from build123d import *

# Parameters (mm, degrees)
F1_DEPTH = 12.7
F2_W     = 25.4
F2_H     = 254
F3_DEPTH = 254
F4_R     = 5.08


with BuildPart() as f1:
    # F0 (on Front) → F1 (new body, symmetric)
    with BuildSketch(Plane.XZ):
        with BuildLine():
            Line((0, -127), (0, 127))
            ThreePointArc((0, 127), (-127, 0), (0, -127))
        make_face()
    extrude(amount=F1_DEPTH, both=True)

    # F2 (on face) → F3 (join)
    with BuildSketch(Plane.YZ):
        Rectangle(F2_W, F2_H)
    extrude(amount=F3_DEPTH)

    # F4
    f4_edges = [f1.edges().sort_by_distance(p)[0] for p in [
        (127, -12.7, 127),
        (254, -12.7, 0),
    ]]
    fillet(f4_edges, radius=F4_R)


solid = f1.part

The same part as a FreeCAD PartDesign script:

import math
import FreeCAD as App
import Part
import Sketcher

V = App.Vector
Q = App.Units.Quantity


def edges_at(feature, points):
    """Names of the edges that pass closest to the given points."""
    edges = feature.Shape.Edges
    near = lambda p: min(range(len(edges)), key=lambda i: edges[i].distToShape(Part.Vertex(*p))[0])
    return sorted({f"Edge{near(p) + 1}" for p in points})

doc = App.newDocument("Part")
body = doc.addObject("PartDesign::Body", "Body")

# Sketch on XZ plane
sketch1 = doc.addObject("Sketcher::SketchObject", "Sketch")
body.addObject(sketch1)
sketch1.AttachmentSupport = (doc.XZ_Plane, [""])
sketch1.MapMode = "FlatFace"
sketch1.addGeometry(Part.LineSegment(V(0, -127, 0), V(0, 127, 0)), False)
sketch1.addGeometry(Part.ArcOfCircle(Part.Circle(V(0, 0, 0), V(0, 0, 1), 127), math.radians(90), math.radians(270)), False)
sketch1.addConstraint(Sketcher.Constraint("Coincident", 0, 1, 1, 2))
sketch1.addConstraint(Sketcher.Constraint("Coincident", 1, 1, 0, 2))
sketch1.addConstraint(Sketcher.Constraint("Vertical", 0))
sketch1.addConstraint(Sketcher.Constraint("Coincident", 1, 3, -1, 1))
sketch1.addConstraint(Sketcher.Constraint("PointOnObject", 0, 1, -2))
sketch1.addConstraint(Sketcher.Constraint("Radius", 1, Q("5 in")))
pad1 = doc.addObject("PartDesign::Pad", "Pad")
body.addObject(pad1)
pad1.Profile = sketch1
pad1.Length = Q("1 in")
pad1.Midplane = True

# Sketch on YZ plane
sketch2 = doc.addObject("Sketcher::SketchObject", "Sketch001")
body.addObject(sketch2)
sketch2.AttachmentSupport = (doc.YZ_Plane, [""])
sketch2.MapMode = "FlatFace"
sketch2.addGeometry(Part.LineSegment(V(-13, 127, 0), V(-13, -127, 0)), False)
sketch2.addGeometry(Part.LineSegment(V(-13, -127, 0), V(13, -127, 0)), False)
sketch2.addGeometry(Part.LineSegment(V(13, -127, 0), V(13, 127, 0)), False)
sketch2.addGeometry(Part.LineSegment(V(13, 127, 0), V(-13, 127, 0)), False)
sketch2.addConstraint(Sketcher.Constraint("Coincident", 0, 2, 1, 1))
sketch2.addConstraint(Sketcher.Constraint("Coincident", 1, 2, 2, 1))
sketch2.addConstraint(Sketcher.Constraint("Coincident", 2, 2, 3, 1))
sketch2.addConstraint(Sketcher.Constraint("Coincident", 3, 2, 0, 1))
sketch2.addConstraint(Sketcher.Constraint("Vertical", 0))
sketch2.addConstraint(Sketcher.Constraint("Horizontal", 1))
sketch2.addConstraint(Sketcher.Constraint("Vertical", 2))
sketch2.addConstraint(Sketcher.Constraint("Horizontal", 3))
sketch2.addConstraint(Sketcher.Constraint("Symmetric", 0, 2, 2, 2, -1, 1))
sketch2.addConstraint(Sketcher.Constraint("DistanceX", 1, 1, 1, 2, Q("1 in")))
sketch2.addConstraint(Sketcher.Constraint("DistanceY", 0, 2, 0, 1, Q("10 in")))
pad2 = doc.addObject("PartDesign::Pad", "Pad001")
body.addObject(pad2)
pad2.Profile = sketch2
pad2.Length = Q("10 in")
doc.recompute()

fillet = doc.addObject("PartDesign::Fillet", "Fillet")
body.addObject(fillet)
fillet.Base = (pad2, edges_at(pad2, [(127, -12.7, 127), (254, -12.7, 0)]))
fillet.Radius = Q("0.2 in")

doc.recompute()
